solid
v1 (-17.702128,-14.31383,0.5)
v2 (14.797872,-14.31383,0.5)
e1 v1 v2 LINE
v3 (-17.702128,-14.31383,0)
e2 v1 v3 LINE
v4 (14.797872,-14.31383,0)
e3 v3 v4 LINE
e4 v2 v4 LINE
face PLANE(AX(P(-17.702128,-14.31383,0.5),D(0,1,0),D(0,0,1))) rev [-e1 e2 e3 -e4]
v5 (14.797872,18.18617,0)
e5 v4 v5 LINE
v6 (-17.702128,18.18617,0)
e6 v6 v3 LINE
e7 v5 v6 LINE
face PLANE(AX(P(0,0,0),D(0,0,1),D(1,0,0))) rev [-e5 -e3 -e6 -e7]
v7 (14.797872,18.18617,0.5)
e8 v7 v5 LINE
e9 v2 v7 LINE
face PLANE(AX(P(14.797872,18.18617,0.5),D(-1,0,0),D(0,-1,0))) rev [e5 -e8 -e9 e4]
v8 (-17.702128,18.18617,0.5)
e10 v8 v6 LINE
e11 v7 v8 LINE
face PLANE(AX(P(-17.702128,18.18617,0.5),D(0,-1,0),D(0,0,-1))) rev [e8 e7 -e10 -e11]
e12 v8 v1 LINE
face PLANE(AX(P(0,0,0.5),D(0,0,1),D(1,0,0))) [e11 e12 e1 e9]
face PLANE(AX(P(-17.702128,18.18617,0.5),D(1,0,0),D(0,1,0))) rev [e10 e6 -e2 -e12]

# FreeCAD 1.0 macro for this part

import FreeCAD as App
import Part
import Sketcher
from FreeCAD import Vector

doc = App.newDocument("Part")
params = doc.addObject("Spreadsheet::Sheet", "Params")
for row, (alias, value) in enumerate([
    ("sketch1_width", "32.5 mm"),
    ("pad1_length", "0.5 mm"),
], start=1):
    params.set(f"A{row}", alias)
    params.set(f"B{row}", "=" + value)
    params.setAlias(f"B{row}", alias)

body = doc.addObject("PartDesign::Body", "Body")

# Sketch on XY plane
sketch1 = body.newObject("Sketcher::SketchObject", "Sketch")
sketch1.AttachmentSupport = (doc.getObject("XY_Plane"), [""])
sketch1.MapMode = "FlatFace"
sketch1.addGeometry([
    Part.LineSegment(Vector(-17.702128, 18.18617, 0), Vector(-17.702128, -14.31383, 0)),
    Part.LineSegment(Vector(-17.702128, -14.31383, 0), Vector(14.797872, -14.31383, 0)),
    Part.LineSegment(Vector(14.797872, -14.31383, 0), Vector(14.797872, 18.18617, 0)),
    Part.LineSegment(Vector(14.797872, 18.18617, 0), Vector(-17.702128, 18.18617, 0)),
], False)
sketch1.addConstraint([
    Sketcher.Constraint("Coincident", 0, 2, 1, 1),
    Sketcher.Constraint("Coincident", 1, 2, 2, 1),
    Sketcher.Constraint("Coincident", 2, 2, 3, 1),
    Sketcher.Constraint("Coincident", 3, 2, 0, 1),
    Sketcher.Constraint("Vertical", 0),
    Sketcher.Constraint("Horizontal", 1),
    Sketcher.Constraint("Vertical", 2),
    Sketcher.Constraint("Horizontal", 3),
    Sketcher.Constraint("Equal", 3, 0),
    Sketcher.Constraint("DistanceX", 1, 1, 1, 2, 32.5),
    Sketcher.Constraint("DistanceY", 0, 2, -1, 1, 14.31383),
    Sketcher.Constraint("DistanceX", 0, 2, -1, 1, 17.702128),
])
sketch1.setExpression("Constraints[9]", "Params.sketch1_width")
pad1 = body.newObject("PartDesign::Pad", "Pad")
pad1.Profile = sketch1
pad1.setExpression("Length", "Params.pad1_length")

doc.recompute()
